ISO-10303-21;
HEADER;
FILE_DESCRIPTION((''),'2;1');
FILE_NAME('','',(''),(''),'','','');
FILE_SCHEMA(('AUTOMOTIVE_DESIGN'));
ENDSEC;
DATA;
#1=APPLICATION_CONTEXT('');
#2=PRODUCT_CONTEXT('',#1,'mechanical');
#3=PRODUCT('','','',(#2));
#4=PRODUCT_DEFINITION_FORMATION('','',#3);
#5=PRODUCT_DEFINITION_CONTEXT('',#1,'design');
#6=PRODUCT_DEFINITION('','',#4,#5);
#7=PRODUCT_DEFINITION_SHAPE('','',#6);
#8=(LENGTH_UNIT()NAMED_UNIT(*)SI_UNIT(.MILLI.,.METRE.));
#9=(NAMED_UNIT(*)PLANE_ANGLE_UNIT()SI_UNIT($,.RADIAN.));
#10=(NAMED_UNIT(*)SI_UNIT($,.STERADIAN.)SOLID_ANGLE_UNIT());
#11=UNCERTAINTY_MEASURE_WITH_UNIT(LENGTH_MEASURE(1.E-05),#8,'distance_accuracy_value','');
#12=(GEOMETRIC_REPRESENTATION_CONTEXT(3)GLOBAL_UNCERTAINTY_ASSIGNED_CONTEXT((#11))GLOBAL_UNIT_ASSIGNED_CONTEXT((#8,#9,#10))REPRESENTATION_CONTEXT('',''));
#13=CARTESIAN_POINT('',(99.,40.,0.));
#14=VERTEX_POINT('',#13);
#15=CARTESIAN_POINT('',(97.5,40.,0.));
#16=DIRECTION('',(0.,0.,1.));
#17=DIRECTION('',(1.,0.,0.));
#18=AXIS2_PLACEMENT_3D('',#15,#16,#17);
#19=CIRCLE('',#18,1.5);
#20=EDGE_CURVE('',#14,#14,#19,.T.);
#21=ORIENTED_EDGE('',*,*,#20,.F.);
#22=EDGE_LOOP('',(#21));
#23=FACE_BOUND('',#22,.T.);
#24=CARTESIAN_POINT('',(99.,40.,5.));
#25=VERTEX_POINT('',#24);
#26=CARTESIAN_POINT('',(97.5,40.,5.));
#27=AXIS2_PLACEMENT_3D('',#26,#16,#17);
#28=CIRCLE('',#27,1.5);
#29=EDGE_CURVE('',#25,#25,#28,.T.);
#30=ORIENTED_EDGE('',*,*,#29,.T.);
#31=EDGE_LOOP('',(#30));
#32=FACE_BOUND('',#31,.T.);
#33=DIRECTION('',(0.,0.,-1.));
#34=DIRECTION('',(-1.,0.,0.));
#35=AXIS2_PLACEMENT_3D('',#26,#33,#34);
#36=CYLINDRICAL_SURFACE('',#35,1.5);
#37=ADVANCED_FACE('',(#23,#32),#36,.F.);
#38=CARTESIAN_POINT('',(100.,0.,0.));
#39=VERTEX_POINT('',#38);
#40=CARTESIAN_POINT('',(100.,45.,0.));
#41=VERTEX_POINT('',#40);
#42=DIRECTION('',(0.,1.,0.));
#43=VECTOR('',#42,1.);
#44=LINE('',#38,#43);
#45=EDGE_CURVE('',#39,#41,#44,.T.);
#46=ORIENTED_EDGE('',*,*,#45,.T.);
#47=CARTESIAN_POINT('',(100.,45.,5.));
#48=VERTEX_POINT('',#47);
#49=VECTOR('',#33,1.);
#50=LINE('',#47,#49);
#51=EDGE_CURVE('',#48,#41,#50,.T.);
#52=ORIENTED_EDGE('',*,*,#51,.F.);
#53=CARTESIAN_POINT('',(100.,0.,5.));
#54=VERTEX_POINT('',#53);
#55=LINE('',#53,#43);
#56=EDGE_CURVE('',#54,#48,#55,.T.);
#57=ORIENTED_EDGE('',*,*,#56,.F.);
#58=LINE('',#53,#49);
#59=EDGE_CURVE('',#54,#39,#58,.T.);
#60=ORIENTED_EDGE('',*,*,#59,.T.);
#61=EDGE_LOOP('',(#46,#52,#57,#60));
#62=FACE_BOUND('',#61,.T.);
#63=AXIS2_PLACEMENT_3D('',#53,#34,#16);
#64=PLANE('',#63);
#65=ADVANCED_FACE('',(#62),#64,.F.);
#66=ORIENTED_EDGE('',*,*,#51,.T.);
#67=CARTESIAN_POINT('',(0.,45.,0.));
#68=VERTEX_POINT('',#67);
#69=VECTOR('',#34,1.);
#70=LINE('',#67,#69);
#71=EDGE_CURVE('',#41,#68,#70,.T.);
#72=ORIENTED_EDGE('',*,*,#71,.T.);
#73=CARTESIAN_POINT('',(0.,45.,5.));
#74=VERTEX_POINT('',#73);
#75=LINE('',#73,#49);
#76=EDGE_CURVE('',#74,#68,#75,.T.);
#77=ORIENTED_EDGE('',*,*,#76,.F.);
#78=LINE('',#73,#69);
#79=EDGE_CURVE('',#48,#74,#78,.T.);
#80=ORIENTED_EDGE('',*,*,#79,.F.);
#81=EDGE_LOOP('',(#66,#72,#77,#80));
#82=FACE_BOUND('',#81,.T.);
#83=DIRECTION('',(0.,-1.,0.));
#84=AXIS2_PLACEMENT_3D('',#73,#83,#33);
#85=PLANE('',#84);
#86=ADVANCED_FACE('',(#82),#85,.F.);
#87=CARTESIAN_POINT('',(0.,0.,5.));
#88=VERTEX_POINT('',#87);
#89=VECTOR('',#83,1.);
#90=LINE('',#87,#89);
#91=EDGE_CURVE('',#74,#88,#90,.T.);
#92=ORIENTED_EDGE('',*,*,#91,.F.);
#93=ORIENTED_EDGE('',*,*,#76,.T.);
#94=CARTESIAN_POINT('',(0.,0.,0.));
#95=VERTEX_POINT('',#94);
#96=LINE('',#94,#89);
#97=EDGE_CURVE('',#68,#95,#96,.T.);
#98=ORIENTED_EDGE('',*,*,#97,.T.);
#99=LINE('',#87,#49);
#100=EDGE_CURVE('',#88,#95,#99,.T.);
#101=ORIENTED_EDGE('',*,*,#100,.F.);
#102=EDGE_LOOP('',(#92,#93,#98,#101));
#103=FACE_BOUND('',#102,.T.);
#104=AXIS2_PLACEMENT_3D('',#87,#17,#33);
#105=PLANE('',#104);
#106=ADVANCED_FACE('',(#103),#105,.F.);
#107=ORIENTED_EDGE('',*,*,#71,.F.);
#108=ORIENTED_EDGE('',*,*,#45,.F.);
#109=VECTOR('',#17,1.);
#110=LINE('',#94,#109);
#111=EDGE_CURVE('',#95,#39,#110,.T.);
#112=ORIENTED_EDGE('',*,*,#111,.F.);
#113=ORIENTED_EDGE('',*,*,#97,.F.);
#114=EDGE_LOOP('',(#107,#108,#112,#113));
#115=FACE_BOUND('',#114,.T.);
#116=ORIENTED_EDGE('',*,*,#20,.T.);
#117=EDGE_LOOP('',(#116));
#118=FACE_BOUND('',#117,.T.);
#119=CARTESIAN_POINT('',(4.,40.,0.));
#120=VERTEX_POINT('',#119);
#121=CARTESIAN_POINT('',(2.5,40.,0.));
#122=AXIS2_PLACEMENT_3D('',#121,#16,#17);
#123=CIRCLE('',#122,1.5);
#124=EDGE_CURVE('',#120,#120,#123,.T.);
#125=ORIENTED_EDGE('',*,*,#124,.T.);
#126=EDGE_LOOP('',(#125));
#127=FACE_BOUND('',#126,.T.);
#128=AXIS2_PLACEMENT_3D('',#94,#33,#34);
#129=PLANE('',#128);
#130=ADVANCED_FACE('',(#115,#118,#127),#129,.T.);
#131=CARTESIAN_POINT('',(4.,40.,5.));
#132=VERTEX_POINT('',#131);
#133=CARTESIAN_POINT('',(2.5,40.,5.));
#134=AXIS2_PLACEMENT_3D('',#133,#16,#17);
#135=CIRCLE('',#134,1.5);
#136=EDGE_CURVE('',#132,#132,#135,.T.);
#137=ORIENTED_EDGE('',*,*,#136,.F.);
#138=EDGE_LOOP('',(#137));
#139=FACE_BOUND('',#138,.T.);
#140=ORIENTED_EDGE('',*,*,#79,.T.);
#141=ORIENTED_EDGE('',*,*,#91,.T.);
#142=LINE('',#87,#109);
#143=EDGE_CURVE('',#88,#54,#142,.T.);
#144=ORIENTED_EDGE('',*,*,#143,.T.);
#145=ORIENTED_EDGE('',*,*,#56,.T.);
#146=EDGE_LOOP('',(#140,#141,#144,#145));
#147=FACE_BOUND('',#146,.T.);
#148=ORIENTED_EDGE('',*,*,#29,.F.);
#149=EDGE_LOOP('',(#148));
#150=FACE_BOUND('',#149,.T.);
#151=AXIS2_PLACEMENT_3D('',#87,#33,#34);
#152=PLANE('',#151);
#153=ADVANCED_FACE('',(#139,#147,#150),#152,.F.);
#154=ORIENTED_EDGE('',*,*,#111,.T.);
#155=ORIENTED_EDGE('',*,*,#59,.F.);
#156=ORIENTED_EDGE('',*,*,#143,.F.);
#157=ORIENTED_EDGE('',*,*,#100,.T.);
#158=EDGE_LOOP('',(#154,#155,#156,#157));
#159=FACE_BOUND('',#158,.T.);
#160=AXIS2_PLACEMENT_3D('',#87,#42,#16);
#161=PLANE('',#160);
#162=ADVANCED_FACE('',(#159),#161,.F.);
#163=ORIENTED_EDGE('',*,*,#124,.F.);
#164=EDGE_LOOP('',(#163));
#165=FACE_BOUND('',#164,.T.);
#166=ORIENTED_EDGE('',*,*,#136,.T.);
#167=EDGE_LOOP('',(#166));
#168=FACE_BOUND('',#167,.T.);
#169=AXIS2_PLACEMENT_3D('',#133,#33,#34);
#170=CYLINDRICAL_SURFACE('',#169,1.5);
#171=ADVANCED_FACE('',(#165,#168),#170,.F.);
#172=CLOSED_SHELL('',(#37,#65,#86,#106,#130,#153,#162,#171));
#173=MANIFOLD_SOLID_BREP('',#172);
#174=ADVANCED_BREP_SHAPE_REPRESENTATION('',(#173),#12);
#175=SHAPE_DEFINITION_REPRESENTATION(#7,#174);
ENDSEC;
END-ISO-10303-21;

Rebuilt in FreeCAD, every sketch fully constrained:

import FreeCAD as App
import Part
import Sketcher
Q = App.Units.Quantity


def add_polygon(sketch, points):
    """Adds a closed chain of lines whose ends are joined by coincident constraints."""
    first, n = sketch.GeometryCount, len(points)
    for a, b in zip(points, points[1:] + points[:1]):
        sketch.addGeometry(Part.LineSegment(App.Vector(*a, 0), App.Vector(*b, 0)), False)
    for i in range(n):
        sketch.addConstraint(Sketcher.Constraint("Coincident", first + i, 2, first + (i + 1) % n, 1))

doc = App.newDocument("Part")
body = doc.addObject("PartDesign::Body", "Body")

# Sketch on XY plane
sketch1 = doc.addObject("Sketcher::SketchObject", "Sketch")
body.addObject(sketch1)
sketch1.AttachmentSupport = (doc.XY_Plane, [""])
sketch1.MapMode = "FlatFace"
add_polygon(sketch1, [(0, 45), (0, 0), (100, 0), (100, 45)])  # lines 0-3
sketch1.addGeometry(Part.Circle(App.Vector(2.5, 40, 0), App.Vector(0, 0, 1), 1.5), False)  # 4
sketch1.addGeometry(Part.Circle(App.Vector(97.5, 40, 0), App.Vector(0, 0, 1), 1.5), False)  # 5
sketch1.addConstraint([
    Sketcher.Constraint("Vertical", 0),
    Sketcher.Constraint("Horizontal", 1),
    Sketcher.Constraint("Vertical", 2),
    Sketcher.Constraint("Horizontal", 3),
    Sketcher.Constraint("Coincident", 0, 2, -1, 1),
    Sketcher.Constraint("Equal", 4, 5),
    Sketcher.Constraint("Horizontal", 4, 3, 5, 3),
    Sketcher.Constraint("Diameter", 4, Q("3 mm")),
    Sketcher.Constraint("DistanceX", 1, 1, 1, 2, Q("100 mm")),
    Sketcher.Constraint("DistanceY", 0, 2, 0, 1, Q("45 mm")),
    Sketcher.Constraint("DistanceY", -1, 1, 4, 3, Q("40 mm")),
    Sketcher.Constraint("DistanceX", 4, 3, 5, 3, Q("95 mm")),
    Sketcher.Constraint("DistanceX", -1, 1, 4, 3, Q("2.5 mm")),
])
pad1 = doc.addObject("PartDesign::Pad", "Pad")
body.addObject(pad1)
pad1.Profile = sketch1
pad1.Length = 5

doc.recompute()
